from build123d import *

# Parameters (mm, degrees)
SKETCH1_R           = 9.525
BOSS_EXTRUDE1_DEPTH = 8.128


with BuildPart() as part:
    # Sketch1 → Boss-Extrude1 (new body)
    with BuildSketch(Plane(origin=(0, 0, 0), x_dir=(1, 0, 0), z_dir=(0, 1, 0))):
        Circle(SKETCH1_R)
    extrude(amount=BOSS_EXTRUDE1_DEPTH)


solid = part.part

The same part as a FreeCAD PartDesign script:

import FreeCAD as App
import Part
import Sketcher

V = App.Vector
Q = App.Units.Quantity

doc = App.newDocument("Part")
body = doc.addObject("PartDesign::Body", "Body")

sketch1 = doc.addObject("Sketcher::SketchObject", "Sketch")
body.addObject(sketch1)
sketch1.AttachmentSupport = (doc.XZ_Plane, [""])
sketch1.MapMode = "FlatFace"
sketch1.addGeometry(Part.Circle(V(0, 0, 0), V(0, 0, 1), 9.525), False)
sketch1.addConstraint([
    Sketcher.Constraint("Coincident", 0, 3, -1, 1),
    Sketcher.Constraint("Diameter", 0, Q("0.75 in")),
])
pad1 = doc.addObject("PartDesign::Pad", "Pad")
body.addObject(pad1)
pad1.Profile = sketch1
pad1.Length = Q("0.32 in")
pad1.Reversed = True

doc.recompute()
